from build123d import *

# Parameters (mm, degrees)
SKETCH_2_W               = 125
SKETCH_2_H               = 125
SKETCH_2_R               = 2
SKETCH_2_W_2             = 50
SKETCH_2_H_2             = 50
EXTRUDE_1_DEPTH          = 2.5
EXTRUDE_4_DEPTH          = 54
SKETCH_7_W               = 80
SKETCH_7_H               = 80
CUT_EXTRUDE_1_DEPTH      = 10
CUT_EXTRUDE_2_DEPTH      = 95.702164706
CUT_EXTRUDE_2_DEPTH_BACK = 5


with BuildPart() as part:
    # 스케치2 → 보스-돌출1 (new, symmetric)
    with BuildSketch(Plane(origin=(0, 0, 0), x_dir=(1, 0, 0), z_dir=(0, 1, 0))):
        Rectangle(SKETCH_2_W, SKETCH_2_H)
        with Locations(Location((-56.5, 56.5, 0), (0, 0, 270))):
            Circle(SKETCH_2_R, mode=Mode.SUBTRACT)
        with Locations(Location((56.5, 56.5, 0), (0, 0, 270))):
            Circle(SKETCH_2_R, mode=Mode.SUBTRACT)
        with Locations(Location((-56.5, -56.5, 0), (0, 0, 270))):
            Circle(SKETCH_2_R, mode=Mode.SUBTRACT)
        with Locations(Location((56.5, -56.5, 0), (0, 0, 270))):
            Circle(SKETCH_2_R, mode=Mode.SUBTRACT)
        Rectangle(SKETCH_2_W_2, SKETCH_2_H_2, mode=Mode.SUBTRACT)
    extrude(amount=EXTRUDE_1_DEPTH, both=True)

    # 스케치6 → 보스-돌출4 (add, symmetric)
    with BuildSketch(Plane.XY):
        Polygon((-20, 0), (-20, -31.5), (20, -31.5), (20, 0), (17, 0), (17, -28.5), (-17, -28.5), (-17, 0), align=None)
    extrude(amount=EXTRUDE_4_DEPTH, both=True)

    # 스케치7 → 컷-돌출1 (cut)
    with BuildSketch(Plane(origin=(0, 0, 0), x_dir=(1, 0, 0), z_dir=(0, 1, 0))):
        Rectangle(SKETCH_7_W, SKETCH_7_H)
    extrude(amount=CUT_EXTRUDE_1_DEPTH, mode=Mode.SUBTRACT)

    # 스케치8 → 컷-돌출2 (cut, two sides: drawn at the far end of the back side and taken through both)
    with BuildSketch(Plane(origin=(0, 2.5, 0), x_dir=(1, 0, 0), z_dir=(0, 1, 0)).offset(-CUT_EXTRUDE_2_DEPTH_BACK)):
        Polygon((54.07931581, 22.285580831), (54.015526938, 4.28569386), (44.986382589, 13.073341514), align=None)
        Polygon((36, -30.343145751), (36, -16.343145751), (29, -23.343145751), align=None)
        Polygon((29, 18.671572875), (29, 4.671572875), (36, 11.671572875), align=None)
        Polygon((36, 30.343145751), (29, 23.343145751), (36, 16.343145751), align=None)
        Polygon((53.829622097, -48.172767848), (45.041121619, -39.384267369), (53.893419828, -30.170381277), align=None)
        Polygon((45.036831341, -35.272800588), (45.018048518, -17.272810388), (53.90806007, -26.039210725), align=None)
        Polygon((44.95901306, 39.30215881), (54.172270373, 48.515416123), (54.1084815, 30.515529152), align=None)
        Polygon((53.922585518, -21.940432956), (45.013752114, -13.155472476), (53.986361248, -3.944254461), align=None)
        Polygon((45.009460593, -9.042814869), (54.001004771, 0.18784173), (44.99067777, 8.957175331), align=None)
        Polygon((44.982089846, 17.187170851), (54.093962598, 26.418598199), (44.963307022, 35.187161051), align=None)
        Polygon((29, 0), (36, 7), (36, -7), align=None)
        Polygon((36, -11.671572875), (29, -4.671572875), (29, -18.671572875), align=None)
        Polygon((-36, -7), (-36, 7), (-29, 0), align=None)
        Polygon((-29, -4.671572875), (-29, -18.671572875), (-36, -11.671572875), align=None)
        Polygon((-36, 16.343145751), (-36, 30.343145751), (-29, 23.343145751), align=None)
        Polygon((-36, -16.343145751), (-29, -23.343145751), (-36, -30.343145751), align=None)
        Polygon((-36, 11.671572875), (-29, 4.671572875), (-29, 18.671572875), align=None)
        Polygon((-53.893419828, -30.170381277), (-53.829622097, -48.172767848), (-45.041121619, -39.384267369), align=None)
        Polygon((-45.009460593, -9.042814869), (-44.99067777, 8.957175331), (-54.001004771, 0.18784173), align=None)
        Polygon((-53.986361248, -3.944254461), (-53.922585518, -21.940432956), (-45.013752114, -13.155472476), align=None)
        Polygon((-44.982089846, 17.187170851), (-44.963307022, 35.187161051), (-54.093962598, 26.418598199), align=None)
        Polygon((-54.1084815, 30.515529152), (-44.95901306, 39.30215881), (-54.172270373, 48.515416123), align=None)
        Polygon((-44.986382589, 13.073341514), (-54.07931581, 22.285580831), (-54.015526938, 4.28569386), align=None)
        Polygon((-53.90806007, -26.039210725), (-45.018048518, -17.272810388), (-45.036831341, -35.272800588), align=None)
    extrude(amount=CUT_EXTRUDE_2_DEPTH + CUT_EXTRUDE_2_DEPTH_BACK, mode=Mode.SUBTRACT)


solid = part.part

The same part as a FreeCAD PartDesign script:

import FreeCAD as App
import Part
import Sketcher
from FreeCAD import Vector
Q = App.Units.Quantity

doc = App.newDocument("Part")
body = doc.addObject("PartDesign::Body", "Body")

sketch1 = doc.addObject("Sketcher::SketchObject", "Sketch")
body.addObject(sketch1)
sketch1.AttachmentSupport = (doc.XZ_Plane, [""])
sketch1.MapMode = "FlatFace"
sketch1.addGeometry([
    Part.LineSegment(Vector(-62.5, -62.5, 0), Vector(-62.5, 62.5, 0)),
    Part.LineSegment(Vector(-62.5, 62.5, 0), Vector(62.5, 62.5, 0)),
    Part.LineSegment(Vector(62.5, 62.5, 0), Vector(62.5, -62.5, 0)),
    Part.LineSegment(Vector(62.5, -62.5, 0), Vector(-62.5, -62.5, 0)),
    Part.Circle(Vector(-56.5, 56.5, 0), Vector(0, 0, 1), 2),
    Part.Circle(Vector(56.5, 56.5, 0), Vector(0, 0, 1), 2),
    Part.Circle(Vector(-56.5, -56.5, 0), Vector(0, 0, 1), 2),
    Part.LineSegment(Vector(25, 25, 0), Vector(-25, 25, 0)),
    Part.LineSegment(Vector(-25, 25, 0), Vector(-25, -25, 0)),
    Part.LineSegment(Vector(-25, -25, 0), Vector(25, -25, 0)),
    Part.LineSegment(Vector(25, -25, 0), Vector(25, 25, 0)),
    Part.Circle(Vector(56.5, -56.5, 0), Vector(0, 0, 1), 2),
], False)
sketch1.addConstraint([
    Sketcher.Constraint("Coincident", 0, 2, 1, 1),
    Sketcher.Constraint("Coincident", 1, 2, 2, 1),
    Sketcher.Constraint("Coincident", 2, 2, 3, 1),
    Sketcher.Constraint("Coincident", 3, 2, 0, 1),
    Sketcher.Constraint("Coincident", 7, 2, 8, 1),
    Sketcher.Constraint("Coincident", 8, 2, 9, 1),
    Sketcher.Constraint("Coincident", 9, 2, 10, 1),
    Sketcher.Constraint("Coincident", 10, 2, 7, 1),
    Sketcher.Constraint("Vertical", 0),
    Sketcher.Constraint("Horizontal", 1),
    Sketcher.Constraint("Vertical", 2),
    Sketcher.Constraint("Horizontal", 3),
    Sketcher.Constraint("Horizontal", 7),
    Sketcher.Constraint("Vertical", 8),
    Sketcher.Constraint("Horizontal", 9),
    Sketcher.Constraint("Vertical", 10),
    Sketcher.Constraint("Equal", 4, 5),
    Sketcher.Constraint("Equal", 5, 6),
    Sketcher.Constraint("Equal", 6, 11),
    Sketcher.Constraint("Symmetric", 5, 3, 6, 3, -1, 1),
    Sketcher.Constraint("Symmetric", 4, 3, 11, 3, -1, 1),
    Sketcher.Constraint("Symmetric", 0, 2, 2, 2, -1, 1),
    Sketcher.Constraint("Symmetric", 7, 2, 9, 2, -1, 1),
    Sketcher.Constraint("Symmetric", 4, 3, 5, 3, -2),
    Sketcher.Constraint("Equal", 3, 0),
    Sketcher.Constraint("Equal", 9, 8),
    Sketcher.Constraint("Diameter", 4, Q("4 mm")),
    Sketcher.Constraint("DistanceX", 1, 1, 1, 2, Q("125 mm")),
    Sketcher.Constraint("DistanceX", 7, 2, 7, 1, Q("50 mm")),
    Sketcher.Constraint("DistanceX", 4, 3, 5, 3, Q("113 mm")),
    Sketcher.Constraint("DistanceY", 6, 3, 4, 3, Q("113 mm")),
])
pad1 = doc.addObject("PartDesign::Pad", "Pad")
body.addObject(pad1)
pad1.Profile = sketch1
pad1.Length = 5
pad1.Midplane = True

sketch2 = doc.addObject("Sketcher::SketchObject", "Sketch001")
body.addObject(sketch2)
sketch2.AttachmentSupport = (doc.XY_Plane, [""])
sketch2.MapMode = "FlatFace"
sketch2.addGeometry([
    Part.LineSegment(Vector(-20, 0, 0), Vector(-20, -31.5, 0)),
    Part.LineSegment(Vector(-20, -31.5, 0), Vector(20, -31.5, 0)),
    Part.LineSegment(Vector(20, -31.5, 0), Vector(20, 0, 0)),
    Part.LineSegment(Vector(20, 0, 0), Vector(17, 0, 0)),
    Part.LineSegment(Vector(17, 0, 0), Vector(17, -28.5, 0)),
    Part.LineSegment(Vector(17, -28.5, 0), Vector(-17, -28.5, 0)),
    Part.LineSegment(Vector(-17, -28.5, 0), Vector(-17, 0, 0)),
    Part.LineSegment(Vector(-17, 0, 0), Vector(-20, 0, 0)),
], False)
sketch2.addConstraint([
    Sketcher.Constraint("Coincident", 0, 2, 1, 1),
    Sketcher.Constraint("Coincident", 1, 2, 2, 1),
    Sketcher.Constraint("Coincident", 2, 2, 3, 1),
    Sketcher.Constraint("Coincident", 3, 2, 4, 1),
    Sketcher.Constraint("Coincident", 4, 2, 5, 1),
    Sketcher.Constraint("Coincident", 5, 2, 6, 1),
    Sketcher.Constraint("Coincident", 6, 2, 7, 1),
    Sketcher.Constraint("Coincident", 7, 2, 0, 1),
    Sketcher.Constraint("Vertical", 0),
    Sketcher.Constraint("Horizontal", 1),
    Sketcher.Constraint("Vertical", 2),
    Sketcher.Constraint("Horizontal", 3),
    Sketcher.Constraint("Vertical", 4),
    Sketcher.Constraint("Horizontal", 5),
    Sketcher.Constraint("Vertical", 6),
    Sketcher.Constraint("Horizontal", 7),
    Sketcher.Constraint("Symmetric", 3, 2, 6, 2, -1, 1),
    Sketcher.Constraint("Symmetric", 2, 2, 7, 2, -2),
    Sketcher.Constraint("DistanceX", 1, 1, 1, 2, Q("40 mm")),
    Sketcher.Constraint("DistanceX", 3, 2, 3, 1, Q("3 mm")),
    Sketcher.Constraint("DistanceY", 0, 2, 0, 1, Q("31.5 mm")),
    Sketcher.Constraint("DistanceY", 4, 2, 4, 1, Q("28.5 mm")),
])
pad2 = doc.addObject("PartDesign::Pad", "Pad001")
body.addObject(pad2)
pad2.Profile = sketch2
pad2.Length = 108
pad2.Midplane = True

sketch3 = doc.addObject("Sketcher::SketchObject", "Sketch002")
body.addObject(sketch3)
sketch3.AttachmentSupport = (doc.XZ_Plane, [""])
sketch3.MapMode = "FlatFace"
sketch3.addGeometry([
    Part.LineSegment(Vector(-40, -40, 0), Vector(-40, 40, 0)),
    Part.LineSegment(Vector(-40, 40, 0), Vector(40, 40, 0)),
    Part.LineSegment(Vector(40, 40, 0), Vector(40, -40, 0)),
    Part.LineSegment(Vector(40, -40, 0), Vector(-40, -40, 0)),
], False)
sketch3.addConstraint([
    Sketcher.Constraint("Coincident", 0, 2, 1, 1),
    Sketcher.Constraint("Coincident", 1, 2, 2, 1),
    Sketcher.Constraint("Coincident", 2, 2, 3, 1),
    Sketcher.Constraint("Coincident", 3, 2, 0, 1),
    Sketcher.Constraint("Vertical", 0),
    Sketcher.Constraint("Horizontal", 1),
    Sketcher.Constraint("Vertical", 2),
    Sketcher.Constraint("Horizontal", 3),
    Sketcher.Constraint("Symmetric", 0, 2, 2, 2, -1, 1),
    Sketcher.Constraint("Equal", 3, 0),
    Sketcher.Constraint("DistanceX", 1, 1, 1, 2, Q("80 mm")),
])
pocket1 = doc.addObject("PartDesign::Pocket", "Pocket")
body.addObject(pocket1)
pocket1.Profile = sketch3
pocket1.Length = 10

sketch4 = doc.addObject("Sketcher::SketchObject", "Sketch003")
body.addObject(sketch4)
sketch4.AttachmentSupport = (doc.XZ_Plane, [""])
sketch4.MapMode = "FlatFace"
sketch4.AttachmentOffset = App.Placement(Vector(0, 0, -2.5), App.Rotation())
sketch4.addGeometry([
    Part.LineSegment(Vector(54.015527, -4.285694, 0), Vector(54.079316, -22.285581, 0)),
    Part.LineSegment(Vector(54.079316, -22.285581, 0), Vector(44.986383, -13.073342, 0)),
    Part.LineSegment(Vector(44.986383, -13.073342, 0), Vector(54.015527, -4.285694, 0)),
    Part.LineSegment(Vector(36, 30.343146, 0), Vector(36, 16.343146, 0)),
    Part.LineSegment(Vector(36, 16.343146, 0), Vector(29, 23.343146, 0)),
    Part.LineSegment(Vector(29, 23.343146, 0), Vector(36, 30.343146, 0)),
    Part.LineSegment(Vector(29, -18.671573, 0), Vector(29, -4.671573, 0)),
    Part.LineSegment(Vector(29, -4.671573, 0), Vector(36, -11.671573, 0)),
    Part.LineSegment(Vector(36, -11.671573, 0), Vector(29, -18.671573, 0)),
    Part.LineSegment(Vector(36, -30.343146, 0), Vector(29, -23.343146, 0)),
    Part.LineSegment(Vector(29, -23.343146, 0), Vector(36, -16.343146, 0)),
    Part.LineSegment(Vector(36, -16.343146, 0), Vector(36, -30.343146, 0)),
    Part.LineSegment(Vector(45.041122, 39.384267, 0), Vector(53.829622, 48.172768, 0)),
    Part.LineSegment(Vector(53.829622, 48.172768, 0), Vector(53.89342, 30.170381, 0)),
    Part.LineSegment(Vector(53.89342, 30.170381, 0), Vector(45.041122, 39.384267, 0)),
    Part.LineSegment(Vector(45.018049, 17.27281, 0), Vector(45.036831, 35.272801, 0)),
    Part.LineSegment(Vector(45.036831, 35.272801, 0), Vector(53.90806, 26.039211, 0)),
    Part.LineSegment(Vector(53.90806, 26.039211, 0), Vector(45.018049, 17.27281, 0)),
    Part.LineSegment(Vector(54.17227, -48.515416, 0), Vector(44.959013, -39.302159, 0)),
    Part.LineSegment(Vector(44.959013, -39.302159, 0), Vector(54.108482, -30.515529, 0)),
    Part.LineSegment(Vector(54.108482, -30.515529, 0), Vector(54.17227, -48.515416, 0)),
    Part.LineSegment(Vector(45.013752, 13.155472, 0), Vector(53.922586, 21.940433, 0)),
    Part.LineSegment(Vector(53.922586, 21.940433, 0), Vector(53.986361, 3.944254, 0)),
    Part.LineSegment(Vector(53.986361, 3.944254, 0), Vector(45.013752, 13.155472, 0)),
    Part.LineSegment(Vector(45.009461, 9.042815, 0), Vector(54.001005, -0.187842, 0)),
    Part.LineSegment(Vector(54.001005, -0.187842, 0), Vector(44.990678, -8.957175, 0)),
    Part.LineSegment(Vector(44.990678, -8.957175, 0), Vector(45.009461, 9.042815, 0)),
    Part.LineSegment(Vector(44.98209, -17.187171, 0), Vector(54.093963, -26.418598, 0)),
    Part.LineSegment(Vector(54.093963, -26.418598, 0), Vector(44.963307, -35.187161, 0)),
    Part.LineSegment(Vector(44.963307, -35.187161, 0), Vector(44.98209, -17.187171, 0)),
    Part.LineSegment(Vector(36, -7, 0), Vector(29, 0, 0)),
    Part.LineSegment(Vector(29, 0, 0), Vector(36, 7, 0)),
    Part.LineSegment(Vector(36, 7, 0), Vector(36, -7, 0)),
    Part.LineSegment(Vector(36, 11.671573, 0), Vector(29, 4.671573, 0)),
    Part.LineSegment(Vector(29, 4.671573, 0), Vector(29, 18.671573, 0)),
    Part.LineSegment(Vector(29, 18.671573, 0), Vector(36, 11.671573, 0)),
    Part.LineSegment(Vector(-36, -7, 0), Vector(-36, 7, 0)),
    Part.LineSegment(Vector(-36, 7, 0), Vector(-29, 0, 0)),
    Part.LineSegment(Vector(-29, 0, 0), Vector(-36, -7, 0)),
    Part.LineSegment(Vector(-29, 18.671573, 0), Vector(-29, 4.671573, 0)),
    Part.LineSegment(Vector(-29, 4.671573, 0), Vector(-36, 11.671573, 0)),
    Part.LineSegment(Vector(-36, 11.671573, 0), Vector(-29, 18.671573, 0)),
    Part.LineSegment(Vector(-36, -30.343146, 0), Vector(-36, -16.343146, 0)),
    Part.LineSegment(Vector(-36, -16.343146, 0), Vector(-29, -23.343146, 0)),
    Part.LineSegment(Vector(-29, -23.343146, 0), Vector(-36, -30.343146, 0)),
    Part.LineSegment(Vector(-29, 23.343146, 0), Vector(-36, 16.343146, 0)),
    Part.LineSegment(Vector(-36, 16.343146, 0), Vector(-36, 30.343146, 0)),
    Part.LineSegment(Vector(-36, 30.343146, 0), Vector(-29, 23.343146, 0)),
    Part.LineSegment(Vector(-36, -11.671573, 0), Vector(-29, -4.671573, 0)),
    Part.LineSegment(Vector(-29, -4.671573, 0), Vector(-29, -18.671573, 0)),
    Part.LineSegment(Vector(-29, -18.671573, 0), Vector(-36, -11.671573, 0)),
    Part.LineSegment(Vector(-53.89342, 30.170381, 0), Vector(-53.829622, 48.172768, 0)),
    Part.LineSegment(Vector(-53.829622, 48.172768, 0), Vector(-45.041122, 39.384267, 0)),
    Part.LineSegment(Vector(-45.041122, 39.384267, 0), Vector(-53.89342, 30.170381, 0)),
    Part.LineSegment(Vector(-45.009461, 9.042815, 0), Vector(-44.990678, -8.957175, 0)),
    Part.LineSegment(Vector(-44.990678, -8.957175, 0), Vector(-54.001005, -0.187842, 0)),
    Part.LineSegment(Vector(-54.001005, -0.187842, 0), Vector(-45.009461, 9.042815, 0)),
    Part.LineSegment(Vector(-53.986361, 3.944254, 0), Vector(-53.922586, 21.940433, 0)),
    Part.LineSegment(Vector(-53.922586, 21.940433, 0), Vector(-45.013752, 13.155472, 0)),
    Part.LineSegment(Vector(-45.013752, 13.155472, 0), Vector(-53.986361, 3.944254, 0)),
    Part.LineSegment(Vector(-44.98209, -17.187171, 0), Vector(-44.963307, -35.187161, 0)),
    Part.LineSegment(Vector(-44.963307, -35.187161, 0), Vector(-54.093963, -26.418598, 0)),
    Part.LineSegment(Vector(-54.093963, -26.418598, 0), Vector(-44.98209, -17.187171, 0)),
    Part.LineSegment(Vector(-54.108482, -30.515529, 0), Vector(-44.959013, -39.302159, 0)),
    Part.LineSegment(Vector(-44.959013, -39.302159, 0), Vector(-54.17227, -48.515416, 0)),
    Part.LineSegment(Vector(-54.17227, -48.515416, 0), Vector(-54.108482, -30.515529, 0)),
    Part.LineSegment(Vector(-44.986383, -13.073342, 0), Vector(-54.079316, -22.285581, 0)),
    Part.LineSegment(Vector(-54.079316, -22.285581, 0), Vector(-54.015527, -4.285694, 0)),
    Part.LineSegment(Vector(-54.015527, -4.285694, 0), Vector(-44.986383, -13.073342, 0)),
    Part.LineSegment(Vector(-45.018049, 17.27281, 0), Vector(-53.90806, 26.039211, 0)),
    Part.LineSegment(Vector(-53.90806, 26.039211, 0), Vector(-45.036831, 35.272801, 0)),
    Part.LineSegment(Vector(-45.036831, 35.272801, 0), Vector(-45.018049, 17.27281, 0)),
], False)
sketch4.addConstraint([
    Sketcher.Constraint("Coincident", 0, 2, 1, 1),
    Sketcher.Constraint("Coincident", 1, 2, 2, 1),
    Sketcher.Constraint("Coincident", 2, 2, 0, 1),
    Sketcher.Constraint("Coincident", 3, 2, 4, 1),
    Sketcher.Constraint("Coincident", 4, 2, 5, 1),
    Sketcher.Constraint("Coincident", 5, 2, 3, 1),
    Sketcher.Constraint("Coincident", 6, 2, 7, 1),
    Sketcher.Constraint("Coincident", 7, 2, 8, 1),
    Sketcher.Constraint("Coincident", 8, 2, 6, 1),
    Sketcher.Constraint("Coincident", 9, 2, 10, 1),
    Sketcher.Constraint("Coincident", 10, 2, 11, 1),
    Sketcher.Constraint("Coincident", 11, 2, 9, 1),
    Sketcher.Constraint("Coincident", 12, 2, 13, 1),
    Sketcher.Constraint("Coincident", 13, 2, 14, 1),
    Sketcher.Constraint("Coincident", 14, 2, 12, 1),
    Sketcher.Constraint("Coincident", 15, 2, 16, 1),
    Sketcher.Constraint("Coincident", 16, 2, 17, 1),
    Sketcher.Constraint("Coincident", 17, 2, 15, 1),
    Sketcher.Constraint("Coincident", 18, 2, 19, 1),
    Sketcher.Constraint("Coincident", 19, 2, 20, 1),
    Sketcher.Constraint("Coincident", 20, 2, 18, 1),
    Sketcher.Constraint("Coincident", 21, 2, 22, 1),
    Sketcher.Constraint("Coincident", 22, 2, 23, 1),
    Sketcher.Constraint("Coincident", 23, 2, 21, 1),
    Sketcher.Constraint("Coincident", 24, 2, 25, 1),
    Sketcher.Constraint("Coincident", 25, 2, 26, 1),
    Sketcher.Constraint("Coincident", 26, 2, 24, 1),
    Sketcher.Constraint("Coincident", 27, 2, 28, 1),
    Sketcher.Constraint("Coincident", 28, 2, 29, 1),
    Sketcher.Constraint("Coincident", 29, 2, 27, 1),
    Sketcher.Constraint("Coincident", 30, 2, 31, 1),
    Sketcher.Constraint("Coincident", 31, 2, 32, 1),
    Sketcher.Constraint("Coincident", 32, 2, 30, 1),
    Sketcher.Constraint("Coincident", 33, 2, 34, 1),
    Sketcher.Constraint("Coincident", 34, 2, 35, 1),
    Sketcher.Constraint("Coincident", 35, 2, 33, 1),
    Sketcher.Constraint("Coincident", 36, 2, 37, 1),
    Sketcher.Constraint("Coincident", 37, 2, 38, 1),
    Sketcher.Constraint("Coincident", 38, 2, 36, 1),
    Sketcher.Constraint("Coincident", 39, 2, 40, 1),
    Sketcher.Constraint("Coincident", 40, 2, 41, 1),
    Sketcher.Constraint("Coincident", 41, 2, 39, 1),
    Sketcher.Constraint("Coincident", 42, 2, 43, 1),
    Sketcher.Constraint("Coincident", 43, 2, 44, 1),
    Sketcher.Constraint("Coincident", 44, 2, 42, 1),
    Sketcher.Constraint("Coincident", 45, 2, 46, 1),
    Sketcher.Constraint("Coincident", 46, 2, 47, 1),
    Sketcher.Constraint("Coincident", 47, 2, 45, 1),
    Sketcher.Constraint("Coincident", 48, 2, 49, 1),
    Sketcher.Constraint("Coincident", 49, 2, 50, 1),
    Sketcher.Constraint("Coincident", 50, 2, 48, 1),
    Sketcher.Constraint("Coincident", 51, 2, 52, 1),
    Sketcher.Constraint("Coincident", 52, 2, 53, 1),
    Sketcher.Constraint("Coincident", 53, 2, 51, 1),
    Sketcher.Constraint("Coincident", 54, 2, 55, 1),
    Sketcher.Constraint("Coincident", 55, 2, 56, 1),
    Sketcher.Constraint("Coincident", 56, 2, 54, 1),
    Sketcher.Constraint("Coincident", 57, 2, 58, 1),
    Sketcher.Constraint("Coincident", 58, 2, 59, 1),
    Sketcher.Constraint("Coincident", 59, 2, 57, 1),
    Sketcher.Constraint("Coincident", 60, 2, 61, 1),
    Sketcher.Constraint("Coincident", 61, 2, 62, 1),
    Sketcher.Constraint("Coincident", 62, 2, 60, 1),
    Sketcher.Constraint("Coincident", 63, 2, 64, 1),
    Sketcher.Constraint("Coincident", 64, 2, 65, 1),
    Sketcher.Constraint("Coincident", 65, 2, 63, 1),
    Sketcher.Constraint("Coincident", 66, 2, 67, 1),
    Sketcher.Constraint("Coincident", 67, 2, 68, 1),
    Sketcher.Constraint("Coincident", 68, 2, 66, 1),
    Sketcher.Constraint("Coincident", 69, 2, 70, 1),
    Sketcher.Constraint("Coincident", 70, 2, 71, 1),
    Sketcher.Constraint("Coincident", 71, 2, 69, 1),
    Sketcher.Constraint("Vertical", 3),
    Sketcher.Constraint("Vertical", 6),
    Sketcher.Constraint("Vertical", 11),
    Sketcher.Constraint("Vertical", 32),
    Sketcher.Constraint("Vertical", 34),
    Sketcher.Constraint("Vertical", 36),
    Sketcher.Constraint("Vertical", 39),
    Sketcher.Constraint("Vertical", 42),
    Sketcher.Constraint("Vertical", 46),
    Sketcher.Constraint("Vertical", 49),
    Sketcher.Constraint("Symmetric", 32, 2, 36, 2, -1, 1),
    Sketcher.Constraint("Symmetric", 30, 2, 37, 2, -1, 1),
    Sketcher.Constraint("Symmetric", 6, 2, 39, 2, -1, 1),
    Sketcher.Constraint("Symmetric", 7, 2, 40, 2, -1, 1),
    Sketcher.Constraint("Symmetric", 3, 2, 42, 2, -1, 1),
    Sketcher.Constraint("Symmetric", 4, 2, 43, 2, -1, 1),
    Sketcher.Constraint("Symmetric", 10, 2, 45, 2, -1, 1),
    Sketcher.Constraint("Symmetric", 9, 2, 47, 2, -1, 1),
    Sketcher.Constraint("Symmetric", 33, 2, 48, 2, -1, 1),
    Sketcher.Constraint("Symmetric", 35, 2, 50, 2, -1, 1),
    Sketcher.Constraint("Symmetric", 33, 2, 39, 2, -2),
    Sketcher.Constraint("Symmetric", 35, 2, 40, 2, -2),
    Sketcher.Constraint("Symmetric", 10, 2, 42, 2, -2),
    Sketcher.Constraint("Symmetric", 9, 2, 43, 2, -2),
    Sketcher.Constraint("Symmetric", 12, 2, 51, 2, -2),
    Sketcher.Constraint("Symmetric", 14, 2, 52, 2, -2),
    Sketcher.Constraint("Symmetric", 13, 2, 53, 2, -2),
    Sketcher.Constraint("Symmetric", 25, 2, 54, 2, -2),
    Sketcher.Constraint("Symmetric", 24, 2, 55, 2, -2),
    Sketcher.Constraint("Symmetric", 26, 2, 56, 2, -2),
    Sketcher.Constraint("Symmetric", 21, 2, 57, 2, -2),
    Sketcher.Constraint("Symmetric", 23, 2, 58, 2, -2),
    Sketcher.Constraint("Symmetric", 22, 2, 59, 2, -2),
    Sketcher.Constraint("Symmetric", 28, 2, 60, 2, -2),
    Sketcher.Constraint("Symmetric", 27, 2, 61, 2, -2),
    Sketcher.Constraint("Symmetric", 29, 2, 62, 2, -2),
    Sketcher.Constraint("Symmetric", 18, 2, 63, 2, -2),
    Sketcher.Constraint("Symmetric", 20, 2, 64, 2, -2),
    Sketcher.Constraint("Symmetric", 19, 2, 65, 2, -2),
    Sketcher.Constraint("Symmetric", 0, 2, 66, 2, -2),
    Sketcher.Constraint("Symmetric", 2, 2, 67, 2, -2),
    Sketcher.Constraint("Symmetric", 1, 2, 68, 2, -2),
    Sketcher.Constraint("Symmetric", 16, 2, 69, 2, -2),
    Sketcher.Constraint("Symmetric", 15, 2, 70, 2, -2),
    Sketcher.Constraint("Symmetric", 17, 2, 71, 2, -2),
    Sketcher.Constraint("PointOnObject", 30, 2, -1),
    Sketcher.Constraint("Perpendicular", 4, 5),
    Sketcher.Constraint("Perpendicular", 5, 7),
    Sketcher.Constraint("Perpendicular", 7, 8),
    Sketcher.Constraint("Perpendicular", 8, 9),
    Sketcher.Constraint("Perpendicular", 9, 10),
    Sketcher.Constraint("Parallel", 10, 12),
    Sketcher.Constraint("Parallel", 0, 13),
    Sketcher.Constraint("Parallel", 14, 16),
    Sketcher.Constraint("Perpendicular", 12, 18),
    Sketcher.Constraint("Parallel", 13, 20),
    Sketcher.Constraint("Parallel", 17, 21),
    Sketcher.Constraint("Parallel", 20, 22),
    Sketcher.Constraint("Parallel", 23, 24),
    Sketcher.Constraint("Parallel", 2, 25),
    Sketcher.Constraint("Parallel", 15, 26),
    Sketcher.Constraint("Parallel", 1, 27),
    Sketcher.Constraint("Parallel", 19, 28),
    Sketcher.Constraint("Parallel", 26, 29),
    Sketcher.Constraint("Parallel", 18, 30),
    Sketcher.Constraint("Perpendicular", 30, 31),
    Sketcher.Constraint("Perpendicular", 33, 35),
    Sketcher.Constraint("Perpendicular", 37, 38),
    Sketcher.Constraint("Perpendicular", 40, 41),
    Sketcher.Constraint("Perpendicular", 43, 44),
    Sketcher.Constraint("Perpendicular", 45, 47),
    Sketcher.Constraint("Perpendicular", 48, 50),
    Sketcher.Constraint("Vertical", 4, 2, 6, 2),
    Sketcher.Constraint("Vertical", 5, 2, 7, 2),
    Sketcher.Constraint("Vertical", 9, 2, 30, 2),
    Sketcher.Constraint("Vertical", 11, 2, 31, 2),
    Sketcher.Constraint("Equal", 0, 15),
    Sketcher.Constraint("Equal", 15, 20),
    Sketcher.Constraint("Equal", 20, 26),
    Sketcher.Constraint("Equal", 26, 29),
    Sketcher.Constraint("DistanceY", 3, 2, 3, 1, Q("14 mm")),
    Sketcher.Constraint("Distance", 0, Q("18 mm")),
    Sketcher.Constraint("DistanceX", -1, 1, 3, 2, Q("36 mm")),
    Sketcher.Constraint("Distance", 13, Q("18.0025 mm")),
    Sketcher.Constraint("DistanceY", -1, 1, 15, 2, Q("35.272801 mm")),
    Sketcher.Constraint("DistanceY", 27, 2, -1, 1, Q("26.418598 mm")),
    Sketcher.Constraint("Distance", 2, Q("12.599532 mm")),
    Sketcher.Constraint("Distance", 14, Q("12.77728 mm")),
    Sketcher.Constraint("Distance", 19, Q("12.685331 mm")),
    Sketcher.Constraint("Distance", 21, Q("12.511708 mm")),
    Sketcher.Constraint("Distance", 22, Q("17.996292 mm")),
    Sketcher.Constraint("Distance", 24, Q("12.886151 mm")),
    Sketcher.Constraint("Distance", 28, Q("12.659248 mm")),
    Sketcher.Constraint("DistanceY", 0, 2, -1, 1, Q("22.285581 mm")),
    Sketcher.Constraint("DistanceY", 1, 2, -1, 1, Q("13.073342 mm")),
    Sketcher.Constraint("DistanceX", -1, 1, 13, 2, Q("53.89342 mm")),
    Sketcher.Constraint("DistanceY", -1, 1, 13, 2, Q("30.170381 mm")),
    Sketcher.Constraint("DistanceX", -1, 1, 15, 2, Q("45.036831 mm")),
    Sketcher.Constraint("DistanceX", -1, 1, 16, 2, Q("53.90806 mm")),
    Sketcher.Constraint("DistanceY", 18, 2, -1, 1, Q("39.302159 mm")),
    Sketcher.Constraint("DistanceX", -1, 1, 19, 2, Q("54.108482 mm")),
    Sketcher.Constraint("DistanceX", -1, 1, 22, 2, Q("53.986361 mm")),
    Sketcher.Constraint("DistanceY", 24, 2, -1, 1, Q("0.187842 mm")),
    Sketcher.Constraint("DistanceX", -1, 1, 26, 2, Q("45.009461 mm")),
    Sketcher.Constraint("DistanceX", -1, 1, 29, 2, Q("44.98209 mm")),
    Sketcher.Constraint("DistanceX", -1, 1, 0, 2, Q("54.079316 mm")),
    Sketcher.Constraint("DistanceY", -1, 1, 3, 2, Q("16.343146 mm")),
    Sketcher.Constraint("DistanceY", 6, 2, -1, 1, Q("4.671573 mm")),
    Sketcher.Constraint("DistanceY", -1, 1, 21, 2, Q("21.940433 mm")),
])
pocket2 = doc.addObject("PartDesign::Pocket", "Pocket001")
body.addObject(pocket2)
pocket2.Profile = sketch4
pocket2.Type = "ThroughAll"
pocket2.Midplane = True

doc.recompute()
